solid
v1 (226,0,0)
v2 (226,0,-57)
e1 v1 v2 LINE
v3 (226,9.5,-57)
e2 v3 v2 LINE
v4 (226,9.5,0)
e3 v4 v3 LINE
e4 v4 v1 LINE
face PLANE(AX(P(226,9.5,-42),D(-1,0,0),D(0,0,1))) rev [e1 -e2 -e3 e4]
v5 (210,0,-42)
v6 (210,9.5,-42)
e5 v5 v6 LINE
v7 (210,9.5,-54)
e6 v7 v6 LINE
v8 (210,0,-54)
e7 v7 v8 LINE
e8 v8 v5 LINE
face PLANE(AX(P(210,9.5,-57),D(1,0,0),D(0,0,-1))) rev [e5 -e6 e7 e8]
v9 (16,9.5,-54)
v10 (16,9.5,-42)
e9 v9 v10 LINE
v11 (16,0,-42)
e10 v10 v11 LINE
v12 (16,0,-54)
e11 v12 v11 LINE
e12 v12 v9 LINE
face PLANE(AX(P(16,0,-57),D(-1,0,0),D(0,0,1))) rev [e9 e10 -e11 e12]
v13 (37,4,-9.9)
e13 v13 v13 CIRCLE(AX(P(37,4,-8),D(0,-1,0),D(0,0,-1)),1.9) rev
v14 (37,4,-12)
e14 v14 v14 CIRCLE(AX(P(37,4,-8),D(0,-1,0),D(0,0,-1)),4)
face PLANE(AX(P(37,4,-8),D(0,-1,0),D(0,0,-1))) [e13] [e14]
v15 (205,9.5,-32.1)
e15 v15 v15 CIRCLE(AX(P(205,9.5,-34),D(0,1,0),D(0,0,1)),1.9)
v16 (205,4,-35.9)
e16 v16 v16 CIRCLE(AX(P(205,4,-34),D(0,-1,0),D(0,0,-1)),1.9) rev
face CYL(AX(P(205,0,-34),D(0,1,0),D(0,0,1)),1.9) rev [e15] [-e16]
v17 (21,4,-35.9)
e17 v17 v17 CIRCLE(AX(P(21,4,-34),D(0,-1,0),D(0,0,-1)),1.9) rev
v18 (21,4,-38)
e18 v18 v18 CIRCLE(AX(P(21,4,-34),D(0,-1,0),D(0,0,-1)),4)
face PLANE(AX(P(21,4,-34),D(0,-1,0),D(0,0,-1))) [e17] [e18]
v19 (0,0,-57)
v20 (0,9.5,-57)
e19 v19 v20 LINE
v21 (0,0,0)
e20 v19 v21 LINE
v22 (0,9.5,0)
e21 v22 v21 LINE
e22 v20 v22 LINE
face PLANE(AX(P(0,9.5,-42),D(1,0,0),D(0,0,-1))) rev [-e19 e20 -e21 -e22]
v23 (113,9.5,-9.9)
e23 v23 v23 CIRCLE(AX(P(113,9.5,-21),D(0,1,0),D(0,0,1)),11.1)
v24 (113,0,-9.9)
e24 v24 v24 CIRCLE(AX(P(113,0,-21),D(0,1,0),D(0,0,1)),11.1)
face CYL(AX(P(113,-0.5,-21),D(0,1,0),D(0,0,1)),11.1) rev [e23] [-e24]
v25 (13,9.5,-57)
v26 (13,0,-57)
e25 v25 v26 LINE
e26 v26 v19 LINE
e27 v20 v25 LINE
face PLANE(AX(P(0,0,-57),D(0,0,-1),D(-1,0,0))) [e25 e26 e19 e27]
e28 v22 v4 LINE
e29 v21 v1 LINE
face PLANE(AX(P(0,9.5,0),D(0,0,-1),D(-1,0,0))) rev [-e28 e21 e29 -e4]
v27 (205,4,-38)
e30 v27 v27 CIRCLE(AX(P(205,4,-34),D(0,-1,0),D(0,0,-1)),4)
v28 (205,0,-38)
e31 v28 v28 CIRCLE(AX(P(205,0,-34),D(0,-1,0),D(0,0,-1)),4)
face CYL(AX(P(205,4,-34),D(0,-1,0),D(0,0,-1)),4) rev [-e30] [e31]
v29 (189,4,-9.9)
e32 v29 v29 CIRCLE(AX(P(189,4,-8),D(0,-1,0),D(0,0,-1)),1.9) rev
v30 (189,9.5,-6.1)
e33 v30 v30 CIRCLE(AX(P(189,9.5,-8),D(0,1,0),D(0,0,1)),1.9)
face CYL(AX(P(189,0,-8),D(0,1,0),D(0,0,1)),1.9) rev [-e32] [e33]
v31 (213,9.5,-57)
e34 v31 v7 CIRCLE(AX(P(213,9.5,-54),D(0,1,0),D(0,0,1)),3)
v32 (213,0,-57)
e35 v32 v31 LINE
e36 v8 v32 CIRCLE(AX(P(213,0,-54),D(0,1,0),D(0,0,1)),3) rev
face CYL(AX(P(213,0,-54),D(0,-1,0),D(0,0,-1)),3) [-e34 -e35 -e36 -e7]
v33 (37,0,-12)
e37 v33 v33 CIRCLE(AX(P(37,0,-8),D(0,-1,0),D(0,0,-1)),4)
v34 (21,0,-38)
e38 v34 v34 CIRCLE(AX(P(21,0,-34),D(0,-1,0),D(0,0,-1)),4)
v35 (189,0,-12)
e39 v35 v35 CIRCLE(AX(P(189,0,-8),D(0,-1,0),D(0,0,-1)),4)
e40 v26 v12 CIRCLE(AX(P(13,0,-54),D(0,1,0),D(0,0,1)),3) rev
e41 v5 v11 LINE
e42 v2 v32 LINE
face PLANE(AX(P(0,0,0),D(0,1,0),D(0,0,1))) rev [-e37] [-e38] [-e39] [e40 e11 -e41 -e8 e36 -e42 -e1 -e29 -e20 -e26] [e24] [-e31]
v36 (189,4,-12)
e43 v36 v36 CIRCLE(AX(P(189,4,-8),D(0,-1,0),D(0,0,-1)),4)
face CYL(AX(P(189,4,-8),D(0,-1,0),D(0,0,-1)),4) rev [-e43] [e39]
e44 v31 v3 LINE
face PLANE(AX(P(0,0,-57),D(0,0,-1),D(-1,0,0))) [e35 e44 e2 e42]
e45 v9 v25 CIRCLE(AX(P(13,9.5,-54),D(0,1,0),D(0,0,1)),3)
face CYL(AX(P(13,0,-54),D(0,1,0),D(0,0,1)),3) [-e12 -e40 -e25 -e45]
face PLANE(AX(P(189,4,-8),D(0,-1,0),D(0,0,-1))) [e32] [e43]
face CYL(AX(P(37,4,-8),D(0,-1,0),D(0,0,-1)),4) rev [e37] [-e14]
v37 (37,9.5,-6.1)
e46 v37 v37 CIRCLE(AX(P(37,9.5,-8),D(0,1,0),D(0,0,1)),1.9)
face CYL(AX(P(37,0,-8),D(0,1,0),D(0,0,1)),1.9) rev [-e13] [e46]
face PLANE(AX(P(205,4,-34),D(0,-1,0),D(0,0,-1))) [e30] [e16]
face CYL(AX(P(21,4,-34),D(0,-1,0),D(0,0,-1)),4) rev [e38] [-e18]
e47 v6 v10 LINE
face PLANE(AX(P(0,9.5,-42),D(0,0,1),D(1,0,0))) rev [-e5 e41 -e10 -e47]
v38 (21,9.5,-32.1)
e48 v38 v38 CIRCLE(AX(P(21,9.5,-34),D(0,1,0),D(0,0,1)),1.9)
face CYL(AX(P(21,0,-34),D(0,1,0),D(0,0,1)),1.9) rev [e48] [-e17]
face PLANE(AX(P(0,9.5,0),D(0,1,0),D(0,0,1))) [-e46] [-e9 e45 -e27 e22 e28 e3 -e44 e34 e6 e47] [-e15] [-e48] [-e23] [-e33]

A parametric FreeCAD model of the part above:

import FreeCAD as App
import Part
import Sketcher
from FreeCAD import Vector
Q = App.Units.Quantity


def edges_at(feature, points):
    """Names of the edges that pass closest to the given points."""
    edges = feature.Shape.Edges
    near = lambda p: min(range(len(edges)), key=lambda i: edges[i].distToShape(Part.Vertex(*p))[0])
    return sorted({f"Edge{near(p) + 1}" for p in points})


def add_polygon(sketch, points):
    """Adds a closed chain of lines whose ends are joined by coincident constraints."""
    first, n = sketch.GeometryCount, len(points)
    for a, b in zip(points, points[1:] + points[:1]):
        sketch.addGeometry(Part.LineSegment(App.Vector(*a, 0), App.Vector(*b, 0)), False)
    for i in range(n):
        sketch.addConstraint(Sketcher.Constraint("Coincident", first + i, 2, first + (i + 1) % n, 1))

doc = App.newDocument("Part")
body = doc.addObject("PartDesign::Body", "Body")

# Sketch on XZ plane
sketch1 = doc.addObject("Sketcher::SketchObject", "Sketch")
body.addObject(sketch1)
sketch1.AttachmentSupport = (doc.XZ_Plane, [""])
sketch1.MapMode = "FlatFace"
add_polygon(sketch1, [(0, -42), (0, 0), (226, 0), (226, -42)])  # lines 0-3
sketch1.addConstraint([
    Sketcher.Constraint("Vertical", 0),
    Sketcher.Constraint("Horizontal", 1),
    Sketcher.Constraint("Vertical", 2),
    Sketcher.Constraint("Horizontal", 3),
    Sketcher.Constraint("Coincident", 0, 2, -1, 1),
    Sketcher.Constraint("DistanceX", 1, 1, 1, 2, Q("226 mm")),
    Sketcher.Constraint("DistanceY", 0, 1, 0, 2, Q("42 mm")),
])
pad1 = doc.addObject("PartDesign::Pad", "Pad")
body.addObject(pad1)
pad1.Profile = sketch1
pad1.Length = 9.5
pad1.Reversed = True

# Sketch on XY plane
sketch2 = doc.addObject("Sketcher::SketchObject", "Sketch001")
body.addObject(sketch2)
sketch2.AttachmentSupport = (doc.XY_Plane, [""])
sketch2.MapMode = "FlatFace"
sketch2.AttachmentOffset = App.Placement(Vector(0, 0, -42), App.Rotation())
add_polygon(sketch2, [(16, 10), (16, 0), (0, 0), (0, 10)])  # lines 0-3
add_polygon(sketch2, [(226, 10), (226, 0), (210, 0), (210, 10)])  # lines 4-7
sketch2.addConstraint([
    Sketcher.Constraint("Vertical", 0),
    Sketcher.Constraint("Horizontal", 1),
    Sketcher.Constraint("Vertical", 2),
    Sketcher.Constraint("Horizontal", 3),
    Sketcher.Constraint("Vertical", 4),
    Sketcher.Constraint("Horizontal", 5),
    Sketcher.Constraint("Vertical", 6),
    Sketcher.Constraint("Horizontal", 7),
    Sketcher.Constraint("Coincident", 1, 2, -1, 1),
    Sketcher.Constraint("PointOnObject", 4, 2, -1),
    Sketcher.Constraint("Horizontal", 3, 2, 6, 2),
    Sketcher.Constraint("Equal", 3, 5),
    Sketcher.Constraint("DistanceX", 1, 2, 1, 1, Q("16 mm")),
    Sketcher.Constraint("DistanceY", 0, 2, 0, 1, Q("9.5 mm")),
    Sketcher.Constraint("DistanceX", -1, 1, 4, 2, Q("226 mm")),
])
pad2 = doc.addObject("PartDesign::Pad", "Pad001")
body.addObject(pad2)
pad2.Profile = sketch2
pad2.Length = 15
pad2.Reversed = True
doc.recompute()

fillet = doc.addObject("PartDesign::Fillet", "Fillet")
body.addObject(fillet)
fillet.Base = (pad2, edges_at(pad2, [(16, 4.75, -57), (210, 4.75, -57)]))
fillet.Radius = 3

# Sketch on XZ plane
sketch3 = doc.addObject("Sketcher::SketchObject", "Sketch002")
body.addObject(sketch3)
sketch3.AttachmentSupport = (doc.XZ_Plane, [""])
sketch3.MapMode = "FlatFace"
sketch3.AttachmentOffset = App.Placement(Vector(0, 0, -9.5), App.Rotation())
sketch3.addGeometry([
    Part.Circle(Vector(21, -34, 0), Vector(0, 0, 1), 1.9),
    Part.Circle(Vector(37, -8, 0), Vector(0, 0, 1), 1.9),
    Part.Circle(Vector(189, -8, 0), Vector(0, 0, 1), 1.9),
    Part.Circle(Vector(205, -34, 0), Vector(0, 0, 1), 1.9),
], False)
sketch3.addConstraint([
    Sketcher.Constraint("Equal", 0, 1),
    Sketcher.Constraint("Equal", 1, 2),
    Sketcher.Constraint("Equal", 2, 3),
    Sketcher.Constraint("Horizontal", 1, 3, 2, 3),
    Sketcher.Constraint("Horizontal", 0, 3, 3, 3),
    Sketcher.Constraint("Diameter", 0, Q("3.8 mm")),
    Sketcher.Constraint("DistanceX", -1, 1, 0, 3, Q("21 mm")),
    Sketcher.Constraint("DistanceY", 0, 3, -1, 1, Q("34 mm")),
    Sketcher.Constraint("DistanceX", -1, 1, 1, 3, Q("37 mm")),
    Sketcher.Constraint("DistanceY", 1, 3, -1, 1, Q("8 mm")),
    Sketcher.Constraint("DistanceX", -1, 1, 2, 3, Q("189 mm")),
    Sketcher.Constraint("DistanceX", -1, 1, 3, 3, Q("205 mm")),
])
pocket1 = doc.addObject("PartDesign::Pocket", "Pocket")
body.addObject(pocket1)
pocket1.Profile = sketch3
pocket1.Type = "ThroughAll"
pocket1.Reversed = True

# Sketch on XZ plane
sketch4 = doc.addObject("Sketcher::SketchObject", "Sketch003")
body.addObject(sketch4)
sketch4.AttachmentSupport = (doc.XZ_Plane, [""])
sketch4.MapMode = "FlatFace"
sketch4.AttachmentOffset = App.Placement(Vector(0, 0, -9.5), App.Rotation())
sketch4.addGeometry(Part.Circle(Vector(113, -21, 0), Vector(0, 0, 1), 11), False)
sketch4.addConstraint([
    Sketcher.Constraint("Diameter", 0, Q("22.2 mm")),
    Sketcher.Constraint("DistanceX", -1, 1, 0, 3, Q("113 mm")),
    Sketcher.Constraint("DistanceY", 0, 3, -1, 1, Q("21 mm")),
])
pocket2 = doc.addObject("PartDesign::Pocket", "Pocket001")
body.addObject(pocket2)
pocket2.Profile = sketch4
pocket2.Length = 10
pocket2.Reversed = True

# Sketch on XZ plane
sketch5 = doc.addObject("Sketcher::SketchObject", "Sketch004")
body.addObject(sketch5)
sketch5.AttachmentSupport = (doc.XZ_Plane, [""])
sketch5.MapMode = "FlatFace"
sketch5.addGeometry([
    Part.Circle(Vector(37, -8, 0), Vector(0, 0, 1), 4),
    Part.Circle(Vector(21, -34, 0), Vector(0, 0, 1), 4),
    Part.Circle(Vector(189, -8, 0), Vector(0, 0, 1), 4),
    Part.Circle(Vector(205, -34, 0), Vector(0, 0, 1), 4),
], False)
sketch5.addConstraint([
    Sketcher.Constraint("Equal", 0, 1),
    Sketcher.Constraint("Equal", 1, 2),
    Sketcher.Constraint("Equal", 2, 3),
    Sketcher.Constraint("Horizontal", 0, 3, 2, 3),
    Sketcher.Constraint("Horizontal", 1, 3, 3, 3),
    Sketcher.Constraint("Diameter", 0, Q("8 mm")),
    Sketcher.Constraint("DistanceX", -1, 1, 0, 3, Q("37 mm")),
    Sketcher.Constraint("DistanceY", 0, 3, -1, 1, Q("8 mm")),
    Sketcher.Constraint("DistanceX", -1, 1, 1, 3, Q("21 mm")),
    Sketcher.Constraint("DistanceY", 1, 3, -1, 1, Q("34 mm")),
    Sketcher.Constraint("DistanceX", -1, 1, 2, 3, Q("189 mm")),
    Sketcher.Constraint("DistanceX", -1, 1, 3, 3, Q("205 mm")),
])
pocket3 = doc.addObject("PartDesign::Pocket", "Pocket002")
body.addObject(pocket3)
pocket3.Profile = sketch5
pocket3.Length = 4

doc.recompute()
